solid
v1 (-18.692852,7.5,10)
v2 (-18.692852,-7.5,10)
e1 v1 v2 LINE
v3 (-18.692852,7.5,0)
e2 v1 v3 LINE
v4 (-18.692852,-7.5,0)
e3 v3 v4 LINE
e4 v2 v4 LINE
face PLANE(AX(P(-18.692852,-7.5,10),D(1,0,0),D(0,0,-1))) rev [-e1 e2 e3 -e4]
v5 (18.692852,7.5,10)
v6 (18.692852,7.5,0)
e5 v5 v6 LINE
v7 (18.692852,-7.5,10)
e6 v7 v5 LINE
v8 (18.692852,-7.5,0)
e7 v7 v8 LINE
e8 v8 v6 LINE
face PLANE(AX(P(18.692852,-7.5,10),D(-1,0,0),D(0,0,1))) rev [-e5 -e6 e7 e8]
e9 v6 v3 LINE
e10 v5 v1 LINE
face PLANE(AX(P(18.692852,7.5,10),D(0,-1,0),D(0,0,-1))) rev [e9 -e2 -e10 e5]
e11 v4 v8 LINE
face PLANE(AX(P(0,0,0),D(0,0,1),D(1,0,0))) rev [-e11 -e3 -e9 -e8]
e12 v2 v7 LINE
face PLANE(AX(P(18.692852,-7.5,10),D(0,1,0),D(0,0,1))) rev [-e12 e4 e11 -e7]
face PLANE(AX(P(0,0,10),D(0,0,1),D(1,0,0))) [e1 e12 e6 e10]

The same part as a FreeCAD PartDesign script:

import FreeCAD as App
import Part
import Sketcher

V = App.Vector
Q = App.Units.Quantity


def add_polygon(sketch, points):
    """Adds a closed chain of lines whose ends are joined by coincident constraints."""
    first, n = sketch.GeometryCount, len(points)
    for a, b in zip(points, points[1:] + points[:1]):
        sketch.addGeometry(Part.LineSegment(App.Vector(*a, 0), App.Vector(*b, 0)), False)
    for i in range(n):
        sketch.addConstraint(Sketcher.Constraint("Coincident", first + i, 2, first + (i + 1) % n, 1))

doc = App.newDocument("Part")
params = doc.addObject("Spreadsheet::Sheet", "Params")
for row, (alias, value) in enumerate([
    ("sketch1_height", "15 mm"),
    ("pad1_length", "10 mm"),
], start=1):
    params.set(f"A{row}", alias)
    params.set(f"B{row}", "=" + value)
    params.setAlias(f"B{row}", alias)

body = doc.addObject("PartDesign::Body", "Body")

# Sketch on XY plane
sketch1 = doc.addObject("Sketcher::SketchObject", "Sketch")
body.addObject(sketch1)
sketch1.AttachmentSupport = (doc.XY_Plane, [""])
sketch1.MapMode = "FlatFace"
add_polygon(sketch1, [(-19, 8), (-19, -8), (19, -8), (19, 8)])  # lines 0-3
sketch1.addConstraint([
    Sketcher.Constraint("Vertical", 0),
    Sketcher.Constraint("Horizontal", 1),
    Sketcher.Constraint("Vertical", 2),
    Sketcher.Constraint("Horizontal", 3),
    Sketcher.Constraint("Symmetric", 0, 2, 2, 2, -1, 1),
    Sketcher.Constraint("DistanceY", 0, 2, 0, 1, Q("15 mm")),
    Sketcher.Constraint("DistanceX", 1, 1, 1, 2, Q("37.385704 mm")),
])
sketch1.setExpression("Constraints[9]", "Params.sketch1_height")
pad1 = doc.addObject("PartDesign::Pad", "Pad")
body.addObject(pad1)
pad1.Profile = sketch1
pad1.setExpression("Length", "Params.pad1_length")

doc.recompute()
